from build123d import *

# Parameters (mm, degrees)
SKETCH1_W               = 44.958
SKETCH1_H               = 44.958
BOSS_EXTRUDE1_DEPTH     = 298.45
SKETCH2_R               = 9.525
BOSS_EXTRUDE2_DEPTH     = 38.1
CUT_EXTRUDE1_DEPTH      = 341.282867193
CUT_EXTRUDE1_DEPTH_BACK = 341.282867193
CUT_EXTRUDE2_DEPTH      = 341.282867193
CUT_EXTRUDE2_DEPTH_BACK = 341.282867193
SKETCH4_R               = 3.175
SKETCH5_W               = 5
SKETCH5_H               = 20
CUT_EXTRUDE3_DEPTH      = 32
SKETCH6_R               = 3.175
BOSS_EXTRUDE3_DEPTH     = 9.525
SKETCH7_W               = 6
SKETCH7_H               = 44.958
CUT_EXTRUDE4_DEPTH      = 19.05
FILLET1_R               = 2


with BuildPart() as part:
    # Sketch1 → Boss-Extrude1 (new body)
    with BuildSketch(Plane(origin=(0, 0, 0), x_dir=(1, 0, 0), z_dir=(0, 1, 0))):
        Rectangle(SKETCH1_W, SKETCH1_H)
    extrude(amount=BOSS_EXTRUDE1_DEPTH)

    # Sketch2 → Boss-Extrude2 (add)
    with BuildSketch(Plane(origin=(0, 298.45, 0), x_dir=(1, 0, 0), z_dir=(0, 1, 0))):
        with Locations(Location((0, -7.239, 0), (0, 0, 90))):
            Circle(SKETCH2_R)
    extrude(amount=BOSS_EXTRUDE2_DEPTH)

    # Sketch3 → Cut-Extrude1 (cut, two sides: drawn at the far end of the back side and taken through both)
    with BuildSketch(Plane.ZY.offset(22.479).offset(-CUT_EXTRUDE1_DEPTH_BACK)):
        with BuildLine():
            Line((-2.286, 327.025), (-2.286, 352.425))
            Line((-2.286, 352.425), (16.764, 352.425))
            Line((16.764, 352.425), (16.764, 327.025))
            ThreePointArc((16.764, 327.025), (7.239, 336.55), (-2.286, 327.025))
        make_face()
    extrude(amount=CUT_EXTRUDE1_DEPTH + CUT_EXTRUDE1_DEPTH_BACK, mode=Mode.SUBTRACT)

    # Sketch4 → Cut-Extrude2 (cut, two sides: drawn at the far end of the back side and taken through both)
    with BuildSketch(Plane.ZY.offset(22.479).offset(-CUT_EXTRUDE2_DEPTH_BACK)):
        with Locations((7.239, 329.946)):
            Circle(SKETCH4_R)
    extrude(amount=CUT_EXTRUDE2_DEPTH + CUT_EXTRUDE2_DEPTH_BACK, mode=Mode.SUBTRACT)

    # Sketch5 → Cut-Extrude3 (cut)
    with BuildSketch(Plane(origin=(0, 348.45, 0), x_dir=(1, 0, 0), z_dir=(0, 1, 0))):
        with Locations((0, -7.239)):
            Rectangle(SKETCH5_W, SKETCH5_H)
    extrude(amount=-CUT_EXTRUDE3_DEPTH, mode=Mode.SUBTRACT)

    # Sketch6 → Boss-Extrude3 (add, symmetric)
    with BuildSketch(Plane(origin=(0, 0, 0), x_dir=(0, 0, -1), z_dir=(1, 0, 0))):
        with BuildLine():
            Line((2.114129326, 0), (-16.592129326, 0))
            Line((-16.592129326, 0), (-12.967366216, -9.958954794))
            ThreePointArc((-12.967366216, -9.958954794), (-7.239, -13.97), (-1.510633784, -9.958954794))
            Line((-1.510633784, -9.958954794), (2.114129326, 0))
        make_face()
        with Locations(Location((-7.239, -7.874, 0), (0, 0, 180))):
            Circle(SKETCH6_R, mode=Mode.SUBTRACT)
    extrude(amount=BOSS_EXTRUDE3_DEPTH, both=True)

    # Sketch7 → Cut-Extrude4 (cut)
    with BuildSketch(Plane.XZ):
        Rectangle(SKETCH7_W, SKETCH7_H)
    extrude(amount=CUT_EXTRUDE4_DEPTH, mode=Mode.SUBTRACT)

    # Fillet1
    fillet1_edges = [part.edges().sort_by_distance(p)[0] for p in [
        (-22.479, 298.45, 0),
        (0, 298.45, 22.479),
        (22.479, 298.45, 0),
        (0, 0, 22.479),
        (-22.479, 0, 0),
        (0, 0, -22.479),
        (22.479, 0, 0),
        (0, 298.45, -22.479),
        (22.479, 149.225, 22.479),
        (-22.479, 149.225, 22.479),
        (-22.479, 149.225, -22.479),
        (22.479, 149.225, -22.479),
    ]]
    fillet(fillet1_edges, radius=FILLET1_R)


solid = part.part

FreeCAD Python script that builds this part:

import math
import FreeCAD as App
import Part
import Sketcher
from FreeCAD import Vector
Q = App.Units.Quantity


def edges_at(feature, points):
    """Names of the edges that pass closest to the given points."""
    edges = feature.Shape.Edges
    near = lambda p: min(range(len(edges)), key=lambda i: edges[i].distToShape(Part.Vertex(*p))[0])
    return sorted({f"Edge{near(p) + 1}" for p in points})

doc = App.newDocument("Part")
body = doc.addObject("PartDesign::Body", "Body")

# Sketch on XZ plane
sketch1 = body.newObject("Sketcher::SketchObject", "Sketch")
sketch1.AttachmentSupport = (doc.getObject("XZ_Plane"), [""])
sketch1.MapMode = "FlatFace"
sketch1.addGeometry([
    Part.LineSegment(Vector(-22.479, -22.479, 0), Vector(-22.479, 22.479, 0)),
    Part.LineSegment(Vector(-22.479, 22.479, 0), Vector(22.479, 22.479, 0)),
    Part.LineSegment(Vector(22.479, 22.479, 0), Vector(22.479, -22.479, 0)),
    Part.LineSegment(Vector(22.479, -22.479, 0), Vector(-22.479, -22.479, 0)),
], False)
sketch1.addConstraint([
    Sketcher.Constraint("Coincident", 0, 2, 1, 1),
    Sketcher.Constraint("Coincident", 1, 2, 2, 1),
    Sketcher.Constraint("Coincident", 2, 2, 3, 1),
    Sketcher.Constraint("Coincident", 3, 2, 0, 1),
    Sketcher.Constraint("Vertical", 0),
    Sketcher.Constraint("Horizontal", 1),
    Sketcher.Constraint("Vertical", 2),
    Sketcher.Constraint("Horizontal", 3),
    Sketcher.Constraint("Symmetric", 0, 2, 2, 2, -1, 1),
    Sketcher.Constraint("Equal", 3, 0),
    Sketcher.Constraint("DistanceX", 1, 1, 1, 2, Q("1.77 in")),
])
pad1 = body.newObject("PartDesign::Pad", "Pad")
pad1.Profile = sketch1
pad1.Length = Q("11.75 in")
pad1.Reversed = True

# Sketch on XZ plane
sketch2 = body.newObject("Sketcher::SketchObject", "Sketch001")
sketch2.AttachmentSupport = (doc.getObject("XZ_Plane"), [""])
sketch2.MapMode = "FlatFace"
sketch2.AttachmentOffset = App.Placement(Vector(0, 0, -11.75 * 25.4), App.Rotation())
sketch2.addGeometry(Part.Circle(Vector(0, 7.239, 0), Vector(0, 0, 1), 9.525), False)
sketch2.addConstraint([
    Sketcher.Constraint("PointOnObject", 0, 3, -2),
    Sketcher.Constraint("Diameter", 0, Q("0.75 in")),
    Sketcher.Constraint("DistanceY", -1, 1, 0, 3, Q("0.285 in")),
])
pad2 = body.newObject("PartDesign::Pad", "Pad001")
pad2.Profile = sketch2
pad2.Length = Q("1.5 in")
pad2.Reversed = True

# Sketch on YZ plane
sketch3 = body.newObject("Sketcher::SketchObject", "Sketch002")
sketch3.AttachmentSupport = (doc.getObject("YZ_Plane"), [""])
sketch3.MapMode = "FlatFace"
sketch3.AttachmentOffset = App.Placement(Vector(0, 0, -0.885 * 25.4), App.Rotation())
sketch3.addGeometry([
    Part.LineSegment(Vector(352.425, -2.286, 0), Vector(327.025, -2.286, 0)),
    Part.ArcOfCircle(Part.Circle(Vector(327.025, 7.239, 0), Vector(0, 0, 1), 9.525), math.radians(-90), math.radians(90)),
    Part.LineSegment(Vector(327.025, 16.764, 0), Vector(352.425, 16.764, 0)),
    Part.LineSegment(Vector(352.425, 16.764, 0), Vector(352.425, -2.286, 0)),
], False)
sketch3.addConstraint([
    Sketcher.Constraint("Tangent", 0, 2, 1, 1),
    Sketcher.Constraint("Tangent", 1, 2, 2, 1),
    Sketcher.Constraint("Coincident", 2, 2, 3, 1),
    Sketcher.Constraint("Coincident", 3, 2, 0, 1),
    Sketcher.Constraint("Horizontal", 0),
    Sketcher.Constraint("Horizontal", 2),
    Sketcher.Constraint("Vertical", 3),
    Sketcher.Constraint("DistanceX", 0, 2, 0, 1, Q("1 in")),
    Sketcher.Constraint("Radius", 1, Q("0.375 in")),
    Sketcher.Constraint("DistanceY", 0, 2, -1, 1, Q("0.09 in")),
    Sketcher.Constraint("DistanceX", -1, 1, 1, 3, Q("12.875 in")),
])
pocket1 = body.newObject("PartDesign::Pocket", "Pocket")
pocket1.Profile = sketch3
pocket1.Type = "ThroughAll"
pocket1.Midplane = True

# Sketch on YZ plane
sketch4 = body.newObject("Sketcher::SketchObject", "Sketch003")
sketch4.AttachmentSupport = (doc.getObject("YZ_Plane"), [""])
sketch4.MapMode = "FlatFace"
sketch4.AttachmentOffset = App.Placement(Vector(0, 0, -0.885 * 25.4), App.Rotation())
sketch4.addGeometry(Part.Circle(Vector(329.946, 7.239, 0), Vector(0, 0, 1), 3.175), False)
sketch4.addConstraint([
    Sketcher.Constraint("Diameter", 0, Q("0.25 in")),
    Sketcher.Constraint("DistanceX", -1, 1, 0, 3, Q("12.99 in")),
    Sketcher.Constraint("DistanceY", -1, 1, 0, 3, Q("0.285 in")),
])
pocket2 = body.newObject("PartDesign::Pocket", "Pocket001")
pocket2.Profile = sketch4
pocket2.Type = "ThroughAll"
pocket2.Midplane = True

# Sketch on XZ plane
sketch5 = body.newObject("Sketcher::SketchObject", "Sketch004")
sketch5.AttachmentSupport = (doc.getObject("XZ_Plane"), [""])
sketch5.MapMode = "FlatFace"
sketch5.AttachmentOffset = App.Placement(Vector(0, 0, -348.45), App.Rotation())
sketch5.addGeometry([
    Part.LineSegment(Vector(-2.5, -2.761, 0), Vector(-2.5, 17.239, 0)),
    Part.LineSegment(Vector(-2.5, 17.239, 0), Vector(2.5, 17.239, 0)),
    Part.LineSegment(Vector(2.5, 17.239, 0), Vector(2.5, -2.761, 0)),
    Part.LineSegment(Vector(2.5, -2.761, 0), Vector(-2.5, -2.761, 0)),
], False)
sketch5.addConstraint([
    Sketcher.Constraint("Coincident", 0, 2, 1, 1),
    Sketcher.Constraint("Coincident", 1, 2, 2, 1),
    Sketcher.Constraint("Coincident", 2, 2, 3, 1),
    Sketcher.Constraint("Coincident", 3, 2, 0, 1),
    Sketcher.Constraint("Vertical", 0),
    Sketcher.Constraint("Horizontal", 1),
    Sketcher.Constraint("Vertical", 2),
    Sketcher.Constraint("Horizontal", 3),
    Sketcher.Constraint("DistanceX", 1, 1, 1, 2, Q("5 mm")),
    Sketcher.Constraint("DistanceY", 0, 1, 0, 2, Q("20 mm")),
    Sketcher.Constraint("DistanceX", 0, 2, -1, 1, Q("2.5 mm")),
    Sketcher.Constraint("DistanceY", -1, 1, 0, 2, Q("17.239 mm")),
])
pocket3 = body.newObject("PartDesign::Pocket", "Pocket002")
pocket3.Profile = sketch5
pocket3.Length = 32
pocket3.Reversed = True

# Sketch on YZ plane
sketch6 = body.newObject("Sketcher::SketchObject", "Sketch005")
sketch6.AttachmentSupport = (doc.getObject("YZ_Plane"), [""])
sketch6.MapMode = "FlatFace"
sketch6.addGeometry([
    Part.LineSegment(Vector(0, -2.114129, 0), Vector(0, 16.592129, 0)),  # 0
    Part.LineSegment(Vector(0, 16.592129, 0), Vector(-9.958955, 12.967366, 0)),  # 1
    Part.ArcOfCircle(Part.Circle(Vector(-7.874, 7.239, 0), Vector(0, 0, 1), 6.096), math.radians(110), math.radians(250)),  # 2
    Part.LineSegment(Vector(-9.958955, 1.510634, 0), Vector(0, -2.114129, 0)),  # 3
    Part.Circle(Vector(-7.874, 7.239, 0), Vector(0, 0, 1), 3.175),  # 4
], False)
sketch6.addConstraint([
    Sketcher.Constraint("Coincident", 0, 2, 1, 1),
    Sketcher.Constraint("Tangent", 1, 2, 2, 1),
    Sketcher.Constraint("Tangent", 2, 2, 3, 1),
    Sketcher.Constraint("Coincident", 3, 2, 0, 1),
    Sketcher.Constraint("Vertical", 0),
    Sketcher.Constraint("Coincident", 4, 3, 2, 3),
    Sketcher.Constraint("PointOnObject", 0, 2, -2),
    Sketcher.Constraint("Vertical", 1, 2, 2, 2),
    Sketcher.Constraint("Diameter", 4, Q("0.25 in")),
    Sketcher.Constraint("Radius", 2, Q("0.24 in")),
    Sketcher.Constraint("Angle", 1, Q("-160 deg")),
    Sketcher.Constraint("DistanceX", 2, 3, -1, 1, Q("0.31 in")),
    Sketcher.Constraint("DistanceY", -1, 1, 2, 3, Q("0.285 in")),
])
pad3 = body.newObject("PartDesign::Pad", "Pad002")
pad3.Profile = sketch6
pad3.Length = Q("0.75 in")
pad3.Midplane = True

# Sketch on XZ plane
sketch7 = body.newObject("Sketcher::SketchObject", "Sketch006")
sketch7.AttachmentSupport = (doc.getObject("XZ_Plane"), [""])
sketch7.MapMode = "FlatFace"
sketch7.addGeometry([
    Part.LineSegment(Vector(-3, 22.479, 0), Vector(-3, -22.479, 0)),
    Part.LineSegment(Vector(-3, -22.479, 0), Vector(3, -22.479, 0)),
    Part.LineSegment(Vector(3, -22.479, 0), Vector(3, 22.479, 0)),
    Part.LineSegment(Vector(3, 22.479, 0), Vector(-3, 22.479, 0)),
], False)
sketch7.addConstraint([
    Sketcher.Constraint("Coincident", 0, 2, 1, 1),
    Sketcher.Constraint("Coincident", 1, 2, 2, 1),
    Sketcher.Constraint("Coincident", 2, 2, 3, 1),
    Sketcher.Constraint("Coincident", 3, 2, 0, 1),
    Sketcher.Constraint("Vertical", 0),
    Sketcher.Constraint("Horizontal", 1),
    Sketcher.Constraint("Vertical", 2),
    Sketcher.Constraint("Horizontal", 3),
    Sketcher.Constraint("Symmetric", 0, 2, 2, 2, -1, 1),
    Sketcher.Constraint("DistanceY", 0, 2, 0, 1, Q("1.77 in")),
    Sketcher.Constraint("DistanceX", 1, 1, 1, 2, Q("6 mm")),
])
pocket4 = body.newObject("PartDesign::Pocket", "Pocket003")
pocket4.Profile = sketch7
pocket4.Length = Q("0.75 in")
pocket4.Reversed = True
doc.recompute()

fillet = body.newObject("PartDesign::Fillet", "Fillet")
fillet.Base = (pocket4, edges_at(pocket4, [
    (-22.479, 298.45, 0),
    (0, 298.45, 22.479),
    (22.479, 298.45, 0),
    (0, 0, 22.479),
    (-22.479, 0, 0),
    (0, 0, -22.479),
    (22.479, 0, 0),
    (0, 298.45, -22.479),
    (22.479, 149.225, 22.479),
    (-22.479, 149.225, 22.479),
    (-22.479, 149.225, -22.479),
    (22.479, 149.225, -22.479),
]))
fillet.Radius = 2

doc.recompute()
